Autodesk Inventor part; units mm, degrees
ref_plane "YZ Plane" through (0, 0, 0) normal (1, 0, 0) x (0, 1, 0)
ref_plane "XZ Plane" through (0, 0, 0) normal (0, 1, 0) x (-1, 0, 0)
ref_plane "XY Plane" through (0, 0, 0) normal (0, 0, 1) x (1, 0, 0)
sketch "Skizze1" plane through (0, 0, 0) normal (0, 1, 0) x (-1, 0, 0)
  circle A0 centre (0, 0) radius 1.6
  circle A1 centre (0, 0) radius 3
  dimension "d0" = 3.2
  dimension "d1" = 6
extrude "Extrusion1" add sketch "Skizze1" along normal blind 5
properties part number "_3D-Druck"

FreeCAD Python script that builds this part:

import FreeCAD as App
import Part
import Sketcher

V = App.Vector

doc = App.newDocument("Part")
body = doc.addObject("PartDesign::Body", "Body")

# Sketch on XZ plane
sketch1 = body.newObject("Sketcher::SketchObject", "Sketch")
sketch1.AttachmentSupport = (doc.getObject("XZ_Plane"), [""])
sketch1.MapMode = "FlatFace"
sketch1.addGeometry([
    Part.Circle(V(0, 0, 0), V(0, 0, 1), 3),
    Part.Circle(V(0, 0, 0), V(0, 0, 1), 1.6),
], False)
sketch1.addConstraint([
    Sketcher.Constraint("Coincident", 0, 3, -1, 1),
    Sketcher.Constraint("Coincident", 1, 3, -1, 1),
    Sketcher.Constraint("Diameter", 0, 6.0),
    Sketcher.Constraint("Diameter", 1, 3.2),
])
pad1 = body.newObject("PartDesign::Pad", "Pad")
pad1.Profile = sketch1
pad1.Length = 5
pad1.Reversed = True

doc.recompute()
